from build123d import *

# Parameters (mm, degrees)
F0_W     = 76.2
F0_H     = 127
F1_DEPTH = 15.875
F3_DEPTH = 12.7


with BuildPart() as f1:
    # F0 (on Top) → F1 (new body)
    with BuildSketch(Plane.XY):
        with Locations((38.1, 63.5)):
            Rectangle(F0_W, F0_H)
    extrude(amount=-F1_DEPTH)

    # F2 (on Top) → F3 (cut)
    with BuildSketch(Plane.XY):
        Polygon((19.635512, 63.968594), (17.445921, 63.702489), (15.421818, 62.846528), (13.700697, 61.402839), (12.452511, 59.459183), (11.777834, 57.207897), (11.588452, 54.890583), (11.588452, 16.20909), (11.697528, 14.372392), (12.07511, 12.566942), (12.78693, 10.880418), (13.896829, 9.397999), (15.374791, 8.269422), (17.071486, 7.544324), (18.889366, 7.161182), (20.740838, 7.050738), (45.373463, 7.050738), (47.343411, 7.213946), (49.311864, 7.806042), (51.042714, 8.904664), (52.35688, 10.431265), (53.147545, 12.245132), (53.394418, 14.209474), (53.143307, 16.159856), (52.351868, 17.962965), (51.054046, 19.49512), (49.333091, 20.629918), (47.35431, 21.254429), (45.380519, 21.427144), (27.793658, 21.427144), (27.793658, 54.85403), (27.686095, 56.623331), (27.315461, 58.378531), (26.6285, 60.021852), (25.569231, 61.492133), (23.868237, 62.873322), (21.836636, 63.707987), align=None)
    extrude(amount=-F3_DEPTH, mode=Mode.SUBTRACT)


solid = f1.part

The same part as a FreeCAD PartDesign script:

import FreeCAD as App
import Part
import Sketcher
from FreeCAD import Vector
Q = App.Units.Quantity


def add_polygon(sketch, points):
    """Adds a closed chain of lines whose ends are joined by coincident constraints."""
    first, n = sketch.GeometryCount, len(points)
    for a, b in zip(points, points[1:] + points[:1]):
        sketch.addGeometry(Part.LineSegment(App.Vector(*a, 0), App.Vector(*b, 0)), False)
    for i in range(n):
        sketch.addConstraint(Sketcher.Constraint("Coincident", first + i, 2, first + (i + 1) % n, 1))

doc = App.newDocument("Part")
params = doc.addObject("Spreadsheet::Sheet", "Params")
for row, (alias, value) in enumerate([
    ("sketch1_width", "3 in"),
    ("sketch1_height", "5 in"),
    ("pad1_length", "0.625 in"),
    ("pocket1_length", "0.5 in"),
], start=1):
    params.set(f"A{row}", alias)
    params.set(f"B{row}", "=" + value)
    params.setAlias(f"B{row}", alias)

body = doc.addObject("PartDesign::Body", "Body")

sketch1 = doc.addObject("Sketcher::SketchObject", "Sketch")
body.addObject(sketch1)
sketch1.AttachmentSupport = (doc.XY_Plane, [""])
sketch1.MapMode = "FlatFace"
add_polygon(sketch1, [(0, 127), (0, 0), (76, 0), (76, 127)])
sketch1.addConstraint([
    Sketcher.Constraint("Vertical", 0),
    Sketcher.Constraint("Horizontal", 1),
    Sketcher.Constraint("Vertical", 2),
    Sketcher.Constraint("Horizontal", 3),
    Sketcher.Constraint("Coincident", 0, 2, -1, 1),
    Sketcher.Constraint("DistanceX", 1, 1, 1, 2, Q("3 in")),
    Sketcher.Constraint("DistanceY", 0, 2, 0, 1, Q("5 in")),
])
sketch1.setExpression("Constraints[9]", "Params.sketch1_width")
sketch1.setExpression("Constraints[10]", "Params.sketch1_height")
pad1 = doc.addObject("PartDesign::Pad", "Pad")
body.addObject(pad1)
pad1.Profile = sketch1
pad1.setExpression("Length", "Params.pad1_length")
pad1.Reversed = True

sketch2 = doc.addObject("Sketcher::SketchObject", "Sketch001")
body.addObject(sketch2)
sketch2.AttachmentSupport = (doc.XY_Plane, [""])
sketch2.MapMode = "FlatFace"
add_polygon(sketch2, [(19.6, 64), (17.4, 63.7), (15.4, 62.8), (13.7, 61.4), (12.5, 59.5), (11.8, 57.2), (11.6, 54.9), (11.6, 16.2), (11.7, 14.4), (12.1, 12.6), (12.8, 10.9), (13.9, 9.4), (15.4, 8.3), (17.1, 7.5), (18.9, 7.2), (20.7, 7.1), (45.4, 7.1), (47.3, 7.2), (49.3, 7.8), (51, 8.9), (52.4, 10.4), (53.1, 12.2), (53.4, 14.2), (53.1, 16.2), (52.4, 18), (51.1, 19.5), (49.3, 20.6), (47.4, 21.3), (45.4, 21.4), (27.8, 21.4), (27.8, 54.9), (27.7, 56.6), (27.3, 58.4), (26.6, 60), (25.6, 61.5), (23.9, 62.9), (21.8, 63.7)])
sketch2.addConstraint([
    Sketcher.Constraint("Vertical", 6),
    Sketcher.Constraint("Horizontal", 15),
    Sketcher.Constraint("Horizontal", 28),
    Sketcher.Constraint("Vertical", 29),
    Sketcher.Constraint("DistanceY", -1, 1, 10, 2, Q("0.37 in")),
    Sketcher.Constraint("DistanceY", 26, 2, 27, 2, Q("0.0067998 in")),
    Sketcher.Constraint("DistanceY", 30, 2, 32, 2, Q("0.1338 in")),
    Sketcher.Constraint("Distance", 0, 2.205702),
    Sketcher.Constraint("DistanceX", 28, 2, 28, 1, 17.586861),
    Sketcher.Constraint("DistanceX", -1, 1, 32, 2, 26.6285),
    Sketcher.Constraint("DistanceY", 5, 2, 3, 2, 4.5686),
    Sketcher.Constraint("DistanceY", 7, 2, 6, 2, 1.836698),
    Sketcher.Constraint("DistanceX", 8, 2, 3, 2, 0.377401),
    Sketcher.Constraint("DistanceX", 7, 2, 9, 2, 1.089402),
    Sketcher.Constraint("DistanceX", 9, 2, 10, 2, 1.109899),
    Sketcher.Constraint("DistanceY", 12, 2, 11, 2, 0.725098),
    Sketcher.Constraint("DistanceX", 15, 2, 17, 2, 3.938401),
    Sketcher.Constraint("DistanceX", 13, 2, 17, 2, 30.422498),
    Sketcher.Constraint("DistanceY", 18, 2, 19, 2, 1.526601),
    Sketcher.Constraint("DistanceY", 19, 2, 23, 2, 7.5317),
    Sketcher.Constraint("DistanceX", 24, 2, 20, 2, 2.093499),
    Sketcher.Constraint("DistanceY", 29, 2, 30, 2, 1.769301),
    Sketcher.Constraint("DistanceX", 2, 2, 30, 2, 13.985398),
    Sketcher.Constraint("DistanceY", 30, 2, 31, 2, 1.7552),
    Sketcher.Constraint("DistanceX", 35, 2, 34, 2, 2.031601),
    Sketcher.Constraint("DistanceY", 0, 2, 35, 2, 0.005498),
    Sketcher.Constraint("Distance", 1, 2.197649),
    Sketcher.Constraint("Distance", 2, 2.246441),
    Sketcher.Constraint("Distance", 4, 2.350208),
    Sketcher.Constraint("Distance", 5, 2.32504),
    Sketcher.Constraint("Distance", 8, 1.84451),
    Sketcher.Constraint("Distance", 12, 1.84514),
    Sketcher.Constraint("Distance", 22, 1.966481),
    Sketcher.Constraint("Distance", 25, 2.06142),
    Sketcher.Constraint("Distance", 26, 2.074991),
    Sketcher.Constraint("Distance", 32, 1.781129),
    Sketcher.Constraint("Distance", 33, 1.812119),
    Sketcher.Constraint("DistanceX", 15, 1, 15, 2, 24.632625),
    Sketcher.Constraint("DistanceY", 6, 2, 6, 1, 38.681493),
    Sketcher.Constraint("DistanceY", 29, 1, 29, 2, 33.426886),
    Sketcher.Constraint("DistanceX", -1, 1, 0, 2, 17.445921),
    Sketcher.Constraint("DistanceY", -1, 1, 0, 2, 63.702489),
    Sketcher.Constraint("DistanceY", -1, 1, 2, 2, 61.402839),
    Sketcher.Constraint("DistanceX", -1, 1, 3, 2, 12.452511),
    Sketcher.Constraint("DistanceY", -1, 1, 6, 2, 16.20909),
    Sketcher.Constraint("DistanceY", -1, 1, 8, 2, 12.566942),
    Sketcher.Constraint("DistanceX", -1, 1, 11, 2, 15.374791),
    Sketcher.Constraint("DistanceX", -1, 1, 14, 2, 20.740838),
    Sketcher.Constraint("DistanceX", -1, 1, 16, 2, 47.343411),
    Sketcher.Constraint("DistanceY", -1, 1, 17, 2, 7.806042),
    Sketcher.Constraint("DistanceX", -1, 1, 19, 2, 52.35688),
    Sketcher.Constraint("DistanceX", -1, 1, 21, 2, 53.394418),
    Sketcher.Constraint("DistanceX", -1, 1, 23, 2, 52.351868),
    Sketcher.Constraint("DistanceY", -1, 1, 24, 2, 19.49512),
    Sketcher.Constraint("DistanceX", -1, 1, 25, 2, 49.333091),
    Sketcher.Constraint("DistanceY", -1, 1, 25, 2, 20.629918),
    Sketcher.Constraint("DistanceX", -1, 1, 26, 2, 47.35431),
    Sketcher.Constraint("DistanceX", -1, 1, 27, 2, 45.380519),
    Sketcher.Constraint("DistanceX", -1, 1, 33, 2, 25.569231),
    Sketcher.Constraint("DistanceX", -1, 1, 36, 2, 19.635512),
    Sketcher.Constraint("DistanceY", 1, 2, 0, 2, 0.855961),
    Sketcher.Constraint("DistanceY", 4, 2, 2, 2, 4.194942),
    Sketcher.Constraint("DistanceY", 9, 2, 6, 2, 5.328672),
    Sketcher.Constraint("DistanceY", 11, 2, 8, 2, 4.29752),
    Sketcher.Constraint("DistanceY", 13, 2, 12, 2, 0.383142),
    Sketcher.Constraint("DistanceY", 14, 2, 10, 2, 2.347261),
    Sketcher.Constraint("DistanceY", 15, 2, 16, 2, 0.163208),
    Sketcher.Constraint("DistanceX", 17, 2, 18, 2, 1.73085),
    Sketcher.Constraint("DistanceY", 16, 2, 18, 2, 1.690718),
    Sketcher.Constraint("DistanceY", 17, 2, 20, 2, 4.43909),
    Sketcher.Constraint("DistanceY", 19, 2, 21, 2, 3.778209),
    Sketcher.Constraint("DistanceX", 22, 2, 21, 2, 0.251111),
    Sketcher.Constraint("DistanceY", 33, 2, 34, 2, 1.381189),
    Sketcher.Constraint("DistanceX", 34, 2, 30, 2, 3.817858),
])
pocket1 = doc.addObject("PartDesign::Pocket", "Pocket")
body.addObject(pocket1)
pocket1.Profile = sketch2
pocket1.setExpression("Length", "Params.pocket1_length")

doc.recompute()
